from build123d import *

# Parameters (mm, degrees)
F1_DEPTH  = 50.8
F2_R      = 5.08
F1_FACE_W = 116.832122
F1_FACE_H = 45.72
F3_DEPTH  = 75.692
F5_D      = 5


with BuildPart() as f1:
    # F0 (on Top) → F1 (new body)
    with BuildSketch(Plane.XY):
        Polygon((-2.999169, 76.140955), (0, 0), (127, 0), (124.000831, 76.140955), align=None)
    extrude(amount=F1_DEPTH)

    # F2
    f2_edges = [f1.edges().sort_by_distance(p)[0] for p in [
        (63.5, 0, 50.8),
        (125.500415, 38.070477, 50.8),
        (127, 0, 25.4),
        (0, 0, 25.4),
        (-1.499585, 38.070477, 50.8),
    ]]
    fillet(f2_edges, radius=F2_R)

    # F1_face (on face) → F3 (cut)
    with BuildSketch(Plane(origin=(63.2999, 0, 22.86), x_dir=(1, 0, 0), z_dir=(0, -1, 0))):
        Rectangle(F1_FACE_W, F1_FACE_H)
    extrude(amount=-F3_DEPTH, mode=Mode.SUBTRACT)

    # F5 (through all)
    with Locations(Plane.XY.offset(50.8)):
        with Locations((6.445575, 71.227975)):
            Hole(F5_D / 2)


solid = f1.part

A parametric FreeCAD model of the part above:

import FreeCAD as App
import Part
import Sketcher
Q = App.Units.Quantity


def edges_at(feature, points):
    """Names of the edges that pass closest to the given points."""
    edges = feature.Shape.Edges
    near = lambda p: min(range(len(edges)), key=lambda i: edges[i].distToShape(Part.Vertex(*p))[0])
    return sorted({f"Edge{near(p) + 1}" for p in points})


def add_polygon(sketch, points):
    """Adds a closed chain of lines whose ends are joined by coincident constraints."""
    first, n = sketch.GeometryCount, len(points)
    for a, b in zip(points, points[1:] + points[:1]):
        sketch.addGeometry(Part.LineSegment(App.Vector(*a, 0), App.Vector(*b, 0)), False)
    for i in range(n):
        sketch.addConstraint(Sketcher.Constraint("Coincident", first + i, 2, first + (i + 1) % n, 1))

doc = App.newDocument("Part")
body = doc.addObject("PartDesign::Body", "Body")

sketch1 = body.newObject("Sketcher::SketchObject", "Sketch")
sketch1.AttachmentSupport = (doc.getObject("XY_Plane"), [""])
sketch1.MapMode = "FlatFace"
add_polygon(sketch1, [(-2.999169, 76.140955), (0, 0), (127, 0), (124.000831, 76.140955)])
sketch1.addConstraint(Sketcher.Constraint("Horizontal", 1))
sketch1.addConstraint(Sketcher.Constraint("Horizontal", 3))
sketch1.addConstraint(Sketcher.Constraint("Coincident", 0, 2, -1, 1))
sketch1.addConstraint(Sketcher.Constraint("Parallel", 0, 2))
sketch1.addConstraint(Sketcher.Constraint("DistanceX", 1, 1, 1, 2, Q("5 in")))
sketch1.addConstraint(Sketcher.Constraint("Distance", 0, Q("3 in")))
sketch1.addConstraint(Sketcher.Constraint("DistanceX", -1, 1, 2, 2, Q("124.000831 mm")))
pad1 = body.newObject("PartDesign::Pad", "Pad")
pad1.Profile = sketch1
pad1.Length = Q("2 in")
doc.recompute()

fillet = body.newObject("PartDesign::Fillet", "Fillet")
fillet.Base = (pad1, edges_at(pad1, [
    (63.5, 0, 50.8),
    (125.5, 38.07, 50.8),
    (127, 0, 25.4),
    (0, 0, 25.4),
    (-1.5, 38.07, 50.8),
]))
fillet.Radius = Q("0.2 in")

sketch2 = body.newObject("Sketcher::SketchObject", "Sketch001")
sketch2.AttachmentSupport = (doc.getObject("XZ_Plane"), [""])
sketch2.MapMode = "FlatFace"
add_polygon(sketch2, [(4.883839, 45.72), (4.883839, 0), (121.715961, 0), (121.715961, 45.72)])
sketch2.addConstraint(Sketcher.Constraint("Vertical", 0))
sketch2.addConstraint(Sketcher.Constraint("Horizontal", 1))
sketch2.addConstraint(Sketcher.Constraint("Vertical", 2))
sketch2.addConstraint(Sketcher.Constraint("Horizontal", 3))
sketch2.addConstraint(Sketcher.Constraint("PointOnObject", 0, 2, -1))
sketch2.addConstraint(Sketcher.Constraint("DistanceY", 0, 2, 0, 1, Q("1.8 in")))
sketch2.addConstraint(Sketcher.Constraint("DistanceX", 1, 1, 1, 2, Q("116.832122 mm")))
sketch2.addConstraint(Sketcher.Constraint("DistanceX", -1, 1, 0, 2, Q("4.883839 mm")))
pocket1 = body.newObject("PartDesign::Pocket", "Pocket")
pocket1.Profile = sketch2
pocket1.Length = Q("2.98 in")

sketch3 = body.newObject("Sketcher::SketchObject", "Sketch002")
sketch3.AttachmentSupport = (doc.getObject("XY_Plane"), [""])
sketch3.MapMode = "FlatFace"
sketch3.AttachmentOffset = App.Placement(App.Vector(0, 0, 2 * 25.4), App.Rotation())
sketch3.addGeometry(Part.Circle(App.Vector(6.445575, 71.227975, 0), App.Vector(0, 0, 1), 2.5), False)
sketch3.addConstraint(Sketcher.Constraint("Diameter", 0, Q("5 mm")))
sketch3.addConstraint(Sketcher.Constraint("DistanceX", -1, 1, 0, 3, Q("6.445575 mm")))
sketch3.addConstraint(Sketcher.Constraint("DistanceY", -1, 1, 0, 3, Q("71.227975 mm")))
doc.recompute()
hole = body.newObject("PartDesign::Hole", "Hole")
hole.Profile = sketch3
hole.ThreadType = "None"
hole.Diameter = 5
hole.DepthType = "ThroughAll"

doc.recompute()
